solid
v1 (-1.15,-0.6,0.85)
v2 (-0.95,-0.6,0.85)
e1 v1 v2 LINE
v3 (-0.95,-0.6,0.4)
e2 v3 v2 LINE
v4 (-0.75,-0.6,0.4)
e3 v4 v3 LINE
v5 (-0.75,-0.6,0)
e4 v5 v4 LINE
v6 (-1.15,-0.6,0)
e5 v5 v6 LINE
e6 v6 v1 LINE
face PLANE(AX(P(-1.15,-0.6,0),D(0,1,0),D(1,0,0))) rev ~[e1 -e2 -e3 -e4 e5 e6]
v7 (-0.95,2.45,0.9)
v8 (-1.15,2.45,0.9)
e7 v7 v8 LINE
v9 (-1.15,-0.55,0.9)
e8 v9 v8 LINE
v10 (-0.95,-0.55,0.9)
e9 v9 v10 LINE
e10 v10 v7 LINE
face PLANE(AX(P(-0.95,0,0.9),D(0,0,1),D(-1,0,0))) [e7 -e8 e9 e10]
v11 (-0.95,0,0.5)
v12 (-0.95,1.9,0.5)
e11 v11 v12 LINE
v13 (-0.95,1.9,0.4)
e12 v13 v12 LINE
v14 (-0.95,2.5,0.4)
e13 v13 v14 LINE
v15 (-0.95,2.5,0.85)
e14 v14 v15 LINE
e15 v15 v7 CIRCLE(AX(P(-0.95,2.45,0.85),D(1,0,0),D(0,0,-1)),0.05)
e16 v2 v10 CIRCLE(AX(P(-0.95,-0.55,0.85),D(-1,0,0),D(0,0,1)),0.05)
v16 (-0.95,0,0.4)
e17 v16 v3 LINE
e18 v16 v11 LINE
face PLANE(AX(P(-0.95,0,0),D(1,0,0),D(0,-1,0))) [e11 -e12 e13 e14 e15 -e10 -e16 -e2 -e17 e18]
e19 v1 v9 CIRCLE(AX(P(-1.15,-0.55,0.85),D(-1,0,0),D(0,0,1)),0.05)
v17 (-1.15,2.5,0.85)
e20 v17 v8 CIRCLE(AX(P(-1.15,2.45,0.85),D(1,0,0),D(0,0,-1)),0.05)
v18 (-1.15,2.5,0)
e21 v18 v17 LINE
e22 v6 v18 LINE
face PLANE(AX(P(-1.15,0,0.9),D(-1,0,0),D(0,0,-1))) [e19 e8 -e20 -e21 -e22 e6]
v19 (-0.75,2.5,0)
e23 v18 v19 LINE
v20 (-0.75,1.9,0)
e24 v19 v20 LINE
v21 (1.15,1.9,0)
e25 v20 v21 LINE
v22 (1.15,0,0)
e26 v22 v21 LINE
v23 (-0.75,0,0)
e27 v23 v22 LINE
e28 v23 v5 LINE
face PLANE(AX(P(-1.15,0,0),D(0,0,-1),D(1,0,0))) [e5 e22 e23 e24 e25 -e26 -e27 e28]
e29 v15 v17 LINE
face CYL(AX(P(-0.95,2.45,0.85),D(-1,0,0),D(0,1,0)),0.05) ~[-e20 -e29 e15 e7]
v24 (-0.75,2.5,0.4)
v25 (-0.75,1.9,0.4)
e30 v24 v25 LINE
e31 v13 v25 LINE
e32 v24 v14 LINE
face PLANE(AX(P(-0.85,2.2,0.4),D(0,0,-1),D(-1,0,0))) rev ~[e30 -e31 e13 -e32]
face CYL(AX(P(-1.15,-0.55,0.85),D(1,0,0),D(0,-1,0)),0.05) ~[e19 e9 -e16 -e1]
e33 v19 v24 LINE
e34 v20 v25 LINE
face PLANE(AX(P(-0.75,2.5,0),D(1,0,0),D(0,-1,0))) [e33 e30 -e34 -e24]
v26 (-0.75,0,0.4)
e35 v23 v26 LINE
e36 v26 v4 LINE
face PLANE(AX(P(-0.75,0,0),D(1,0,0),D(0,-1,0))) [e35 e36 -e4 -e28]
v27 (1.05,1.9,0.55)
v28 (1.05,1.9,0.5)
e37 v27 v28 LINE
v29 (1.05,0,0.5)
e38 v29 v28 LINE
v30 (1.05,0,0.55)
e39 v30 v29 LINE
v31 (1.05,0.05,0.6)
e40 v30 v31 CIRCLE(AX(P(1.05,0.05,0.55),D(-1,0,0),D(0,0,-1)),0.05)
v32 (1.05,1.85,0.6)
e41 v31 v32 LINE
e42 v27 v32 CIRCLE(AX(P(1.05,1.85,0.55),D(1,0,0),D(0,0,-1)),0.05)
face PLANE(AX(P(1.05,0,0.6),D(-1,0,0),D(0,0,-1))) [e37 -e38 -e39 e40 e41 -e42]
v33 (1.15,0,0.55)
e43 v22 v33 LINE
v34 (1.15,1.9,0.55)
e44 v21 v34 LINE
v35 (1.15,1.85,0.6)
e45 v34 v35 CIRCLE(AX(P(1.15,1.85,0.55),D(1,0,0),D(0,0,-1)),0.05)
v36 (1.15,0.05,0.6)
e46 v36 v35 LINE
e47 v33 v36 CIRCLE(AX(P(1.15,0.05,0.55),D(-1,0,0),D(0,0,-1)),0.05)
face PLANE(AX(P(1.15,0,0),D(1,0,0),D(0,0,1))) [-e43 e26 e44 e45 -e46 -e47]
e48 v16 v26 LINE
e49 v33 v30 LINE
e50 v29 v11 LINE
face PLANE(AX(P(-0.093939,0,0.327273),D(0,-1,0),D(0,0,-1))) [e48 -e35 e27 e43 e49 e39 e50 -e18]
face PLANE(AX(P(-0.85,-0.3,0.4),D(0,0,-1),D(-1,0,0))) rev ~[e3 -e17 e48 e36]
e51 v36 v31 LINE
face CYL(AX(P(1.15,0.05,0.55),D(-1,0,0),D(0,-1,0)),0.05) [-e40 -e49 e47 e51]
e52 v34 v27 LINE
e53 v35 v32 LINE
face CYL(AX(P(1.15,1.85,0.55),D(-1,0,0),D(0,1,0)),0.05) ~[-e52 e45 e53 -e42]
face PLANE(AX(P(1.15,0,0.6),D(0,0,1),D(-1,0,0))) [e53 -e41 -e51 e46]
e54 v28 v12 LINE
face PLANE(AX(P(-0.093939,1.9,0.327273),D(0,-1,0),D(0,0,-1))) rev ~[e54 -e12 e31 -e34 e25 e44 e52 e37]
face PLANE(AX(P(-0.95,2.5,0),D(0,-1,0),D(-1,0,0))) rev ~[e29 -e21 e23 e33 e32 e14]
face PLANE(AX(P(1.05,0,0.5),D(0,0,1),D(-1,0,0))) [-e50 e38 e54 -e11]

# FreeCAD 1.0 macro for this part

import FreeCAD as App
import Part
import Sketcher
Q = App.Units.Quantity


def edges_at(feature, points):
    """Names of the edges that pass closest to the given points."""
    edges = feature.Shape.Edges
    near = lambda p: min(range(len(edges)), key=lambda i: edges[i].distToShape(Part.Vertex(*p))[0])
    return sorted({f"Edge{near(p) + 1}" for p in points})

doc = App.newDocument("Part")
params = doc.addObject("Spreadsheet::Sheet", "Params")
for row, (alias, value) in enumerate([
    ("sketch1_width", "2 mm"),
    ("sketch1_height", "0.9 mm"),
    ("sketch1_height2", "0.6 mm"),
    ("pad1_length", "1.9 mm"),
    ("sketch2_width", "0.2 mm"),
    ("sketch2_height", "0.6 mm"),
    ("pad2_length", "0.9 mm"),
    ("sketch3_width", "0.2 mm"),
    ("sketch3_height", "0.6 mm"),
    ("pad3_length", "0.4 mm"),
    ("fillet_radius", "0.05 mm"),
], start=1):
    params.set(f"A{row}", alias)
    params.set(f"B{row}", "=" + value)
    params.setAlias(f"B{row}", alias)

body = doc.addObject("PartDesign::Body", "Body")

# Sketch on XZ plane
sketch1 = body.newObject("Sketcher::SketchObject", "Sketch")
sketch1.AttachmentSupport = (doc.getObject("XZ_Plane"), [""])
sketch1.MapMode = "FlatFace"
sketch1.addGeometry([
    Part.LineSegment(App.Vector(-1.15, 0.9, 0), App.Vector(-1.15, 0, 0)),  # 0
    Part.LineSegment(App.Vector(-1.15, 0, 0), App.Vector(1.15, 0, 0)),  # 1
    Part.LineSegment(App.Vector(1.15, 0, 0), App.Vector(1.15, 0.6, 0)),  # 2
    Part.LineSegment(App.Vector(1.15, 0.6, 0), App.Vector(1.05, 0.6, 0)),  # 3
    Part.LineSegment(App.Vector(1.05, 0.6, 0), App.Vector(1.05, 0.5, 0)),  # 4
    Part.LineSegment(App.Vector(1.05, 0.5, 0), App.Vector(-0.95, 0.5, 0)),  # 5
    Part.LineSegment(App.Vector(-0.95, 0.5, 0), App.Vector(-0.95, 0.9, 0)),  # 6
    Part.LineSegment(App.Vector(-0.95, 0.9, 0), App.Vector(-1.15, 0.9, 0)),  # 7
], False)
sketch1.addConstraint([
    Sketcher.Constraint("Coincident", 0, 2, 1, 1),
    Sketcher.Constraint("Coincident", 1, 2, 2, 1),
    Sketcher.Constraint("Coincident", 2, 2, 3, 1),
    Sketcher.Constraint("Coincident", 3, 2, 4, 1),
    Sketcher.Constraint("Coincident", 4, 2, 5, 1),
    Sketcher.Constraint("Coincident", 5, 2, 6, 1),
    Sketcher.Constraint("Coincident", 6, 2, 7, 1),
    Sketcher.Constraint("Coincident", 7, 2, 0, 1),
    Sketcher.Constraint("Vertical", 0),
    Sketcher.Constraint("Horizontal", 1),
    Sketcher.Constraint("Vertical", 2),
    Sketcher.Constraint("Horizontal", 3),
    Sketcher.Constraint("Vertical", 4),
    Sketcher.Constraint("Horizontal", 5),
    Sketcher.Constraint("Vertical", 6),
    Sketcher.Constraint("Horizontal", 7),
    Sketcher.Constraint("Symmetric", 0, 2, 1, 2, -1, 1),
    Sketcher.Constraint("Equal", 3, 4),
    Sketcher.Constraint("DistanceX", 5, 2, 5, 1, Q("2 mm")),
    Sketcher.Constraint("DistanceX", 0, 2, -1, 1, Q("1.15 mm")),
    Sketcher.Constraint("DistanceX", 5, 2, -1, 1, Q("0.95 mm")),
    Sketcher.Constraint("DistanceY", 0, 2, 0, 1, Q("0.9 mm")),
    Sketcher.Constraint("DistanceY", 2, 1, 2, 2, Q("0.6 mm")),
])
sketch1.setExpression("Constraints[18]", "Params.sketch1_width")
sketch1.setExpression("Constraints[21]", "Params.sketch1_height")
sketch1.setExpression("Constraints[22]", "Params.sketch1_height2")
pad1 = body.newObject("PartDesign::Pad", "Pad")
pad1.Profile = sketch1
pad1.setExpression("Length", "Params.pad1_length")
pad1.Reversed = True

# Sketch on XY plane
sketch2 = body.newObject("Sketcher::SketchObject", "Sketch001")
sketch2.AttachmentSupport = (doc.getObject("XY_Plane"), [""])
sketch2.MapMode = "FlatFace"
sketch2.addGeometry([
    Part.LineSegment(App.Vector(-0.95, -0.6, 0), App.Vector(-1.15, -0.6, 0)),  # 0
    Part.LineSegment(App.Vector(-1.15, -0.6, 0), App.Vector(-1.15, 0, 0)),  # 1
    Part.LineSegment(App.Vector(-1.15, 0, 0), App.Vector(-0.95, 0, 0)),  # 2
    Part.LineSegment(App.Vector(-0.95, 0, 0), App.Vector(-0.95, -0.6, 0)),  # 3
    Part.LineSegment(App.Vector(-1.15, 2.5, 0), App.Vector(-0.95, 2.5, 0)),  # 4
    Part.LineSegment(App.Vector(-0.95, 2.5, 0), App.Vector(-0.95, 1.9, 0)),  # 5
    Part.LineSegment(App.Vector(-0.95, 1.9, 0), App.Vector(-1.15, 1.9, 0)),  # 6
    Part.LineSegment(App.Vector(-1.15, 1.9, 0), App.Vector(-1.15, 2.5, 0)),  # 7
], False)
sketch2.addConstraint([
    Sketcher.Constraint("Coincident", 0, 2, 1, 1),
    Sketcher.Constraint("Coincident", 1, 2, 2, 1),
    Sketcher.Constraint("Coincident", 2, 2, 3, 1),
    Sketcher.Constraint("Coincident", 3, 2, 0, 1),
    Sketcher.Constraint("Coincident", 4, 2, 5, 1),
    Sketcher.Constraint("Coincident", 5, 2, 6, 1),
    Sketcher.Constraint("Coincident", 6, 2, 7, 1),
    Sketcher.Constraint("Coincident", 7, 2, 4, 1),
    Sketcher.Constraint("Horizontal", 0),
    Sketcher.Constraint("Vertical", 1),
    Sketcher.Constraint("Horizontal", 2),
    Sketcher.Constraint("Vertical", 3),
    Sketcher.Constraint("Horizontal", 4),
    Sketcher.Constraint("Vertical", 5),
    Sketcher.Constraint("Horizontal", 6),
    Sketcher.Constraint("Vertical", 7),
    Sketcher.Constraint("PointOnObject", 1, 2, -1),
    Sketcher.Constraint("Vertical", 3, 2, 4, 2),
    Sketcher.Constraint("Vertical", 1, 2, 6, 2),
    Sketcher.Constraint("Equal", 3, 5),
    Sketcher.Constraint("DistanceX", 0, 2, -1, 1, Q("1.15 mm")),
    Sketcher.Constraint("DistanceX", 0, 2, 0, 1, Q("0.2 mm")),
    Sketcher.Constraint("DistanceY", 1, 1, 1, 2, Q("0.6 mm")),
    Sketcher.Constraint("DistanceY", -1, 1, 4, 2, Q("2.5 mm")),
])
sketch2.setExpression("Constraints[21]", "Params.sketch2_width")
sketch2.setExpression("Constraints[22]", "Params.sketch2_height")
pad2 = body.newObject("PartDesign::Pad", "Pad001")
pad2.Profile = sketch2
pad2.setExpression("Length", "Params.pad2_length")

# Sketch on XY plane
sketch3 = body.newObject("Sketcher::SketchObject", "Sketch002")
sketch3.AttachmentSupport = (doc.getObject("XY_Plane"), [""])
sketch3.MapMode = "FlatFace"
sketch3.addGeometry([
    Part.LineSegment(App.Vector(-0.95, -0.6, 0), App.Vector(-0.95, 0, 0)),  # 0
    Part.LineSegment(App.Vector(-0.95, 0, 0), App.Vector(-0.75, 0, 0)),  # 1
    Part.LineSegment(App.Vector(-0.75, 0, 0), App.Vector(-0.75, -0.6, 0)),  # 2
    Part.LineSegment(App.Vector(-0.75, -0.6, 0), App.Vector(-0.95, -0.6, 0)),  # 3
    Part.LineSegment(App.Vector(-0.75, 1.9, 0), App.Vector(-0.95, 1.9, 0)),  # 4
    Part.LineSegment(App.Vector(-0.95, 1.9, 0), App.Vector(-0.95, 2.5, 0)),  # 5
    Part.LineSegment(App.Vector(-0.95, 2.5, 0), App.Vector(-0.75, 2.5, 0)),  # 6
    Part.LineSegment(App.Vector(-0.75, 2.5, 0), App.Vector(-0.75, 1.9, 0)),  # 7
], False)
sketch3.addConstraint([
    Sketcher.Constraint("Coincident", 0, 2, 1, 1),
    Sketcher.Constraint("Coincident", 1, 2, 2, 1),
    Sketcher.Constraint("Coincident", 2, 2, 3, 1),
    Sketcher.Constraint("Coincident", 3, 2, 0, 1),
    Sketcher.Constraint("Coincident", 4, 2, 5, 1),
    Sketcher.Constraint("Coincident", 5, 2, 6, 1),
    Sketcher.Constraint("Coincident", 6, 2, 7, 1),
    Sketcher.Constraint("Coincident", 7, 2, 4, 1),
    Sketcher.Constraint("Vertical", 0),
    Sketcher.Constraint("Horizontal", 1),
    Sketcher.Constraint("Vertical", 2),
    Sketcher.Constraint("Horizontal", 3),
    Sketcher.Constraint("Horizontal", 4),
    Sketcher.Constraint("Vertical", 5),
    Sketcher.Constraint("Horizontal", 6),
    Sketcher.Constraint("Vertical", 7),
    Sketcher.Constraint("PointOnObject", 0, 2, -1),
    Sketcher.Constraint("Vertical", 3, 2, 4, 2),
    Sketcher.Constraint("Vertical", 2, 2, 6, 2),
    Sketcher.Constraint("Equal", 2, 5),
    Sketcher.Constraint("DistanceX", 1, 1, 1, 2, Q("0.2 mm")),
    Sketcher.Constraint("DistanceY", 0, 1, 0, 2, Q("0.6 mm")),
    Sketcher.Constraint("DistanceY", -1, 1, 4, 2, Q("1.9 mm")),
    Sketcher.Constraint("DistanceX", 0, 2, -1, 1, Q("0.95 mm")),
])
sketch3.setExpression("Constraints[20]", "Params.sketch3_width")
sketch3.setExpression("Constraints[21]", "Params.sketch3_height")
pad3 = body.newObject("PartDesign::Pad", "Pad002")
pad3.Profile = sketch3
pad3.setExpression("Length", "Params.pad3_length")
doc.recompute()

fillet = body.newObject("PartDesign::Fillet", "Fillet")
fillet.Base = (pad3, edges_at(pad3, [
    (-1.05, -0.6, 0.9),
    (-1.05, 2.5, 0.9),
    (1.1, 1.9, 0.6),
    (1.1, 0, 0.6),
]))
fillet.setExpression("Radius", "Params.fillet_radius")

doc.recompute()
